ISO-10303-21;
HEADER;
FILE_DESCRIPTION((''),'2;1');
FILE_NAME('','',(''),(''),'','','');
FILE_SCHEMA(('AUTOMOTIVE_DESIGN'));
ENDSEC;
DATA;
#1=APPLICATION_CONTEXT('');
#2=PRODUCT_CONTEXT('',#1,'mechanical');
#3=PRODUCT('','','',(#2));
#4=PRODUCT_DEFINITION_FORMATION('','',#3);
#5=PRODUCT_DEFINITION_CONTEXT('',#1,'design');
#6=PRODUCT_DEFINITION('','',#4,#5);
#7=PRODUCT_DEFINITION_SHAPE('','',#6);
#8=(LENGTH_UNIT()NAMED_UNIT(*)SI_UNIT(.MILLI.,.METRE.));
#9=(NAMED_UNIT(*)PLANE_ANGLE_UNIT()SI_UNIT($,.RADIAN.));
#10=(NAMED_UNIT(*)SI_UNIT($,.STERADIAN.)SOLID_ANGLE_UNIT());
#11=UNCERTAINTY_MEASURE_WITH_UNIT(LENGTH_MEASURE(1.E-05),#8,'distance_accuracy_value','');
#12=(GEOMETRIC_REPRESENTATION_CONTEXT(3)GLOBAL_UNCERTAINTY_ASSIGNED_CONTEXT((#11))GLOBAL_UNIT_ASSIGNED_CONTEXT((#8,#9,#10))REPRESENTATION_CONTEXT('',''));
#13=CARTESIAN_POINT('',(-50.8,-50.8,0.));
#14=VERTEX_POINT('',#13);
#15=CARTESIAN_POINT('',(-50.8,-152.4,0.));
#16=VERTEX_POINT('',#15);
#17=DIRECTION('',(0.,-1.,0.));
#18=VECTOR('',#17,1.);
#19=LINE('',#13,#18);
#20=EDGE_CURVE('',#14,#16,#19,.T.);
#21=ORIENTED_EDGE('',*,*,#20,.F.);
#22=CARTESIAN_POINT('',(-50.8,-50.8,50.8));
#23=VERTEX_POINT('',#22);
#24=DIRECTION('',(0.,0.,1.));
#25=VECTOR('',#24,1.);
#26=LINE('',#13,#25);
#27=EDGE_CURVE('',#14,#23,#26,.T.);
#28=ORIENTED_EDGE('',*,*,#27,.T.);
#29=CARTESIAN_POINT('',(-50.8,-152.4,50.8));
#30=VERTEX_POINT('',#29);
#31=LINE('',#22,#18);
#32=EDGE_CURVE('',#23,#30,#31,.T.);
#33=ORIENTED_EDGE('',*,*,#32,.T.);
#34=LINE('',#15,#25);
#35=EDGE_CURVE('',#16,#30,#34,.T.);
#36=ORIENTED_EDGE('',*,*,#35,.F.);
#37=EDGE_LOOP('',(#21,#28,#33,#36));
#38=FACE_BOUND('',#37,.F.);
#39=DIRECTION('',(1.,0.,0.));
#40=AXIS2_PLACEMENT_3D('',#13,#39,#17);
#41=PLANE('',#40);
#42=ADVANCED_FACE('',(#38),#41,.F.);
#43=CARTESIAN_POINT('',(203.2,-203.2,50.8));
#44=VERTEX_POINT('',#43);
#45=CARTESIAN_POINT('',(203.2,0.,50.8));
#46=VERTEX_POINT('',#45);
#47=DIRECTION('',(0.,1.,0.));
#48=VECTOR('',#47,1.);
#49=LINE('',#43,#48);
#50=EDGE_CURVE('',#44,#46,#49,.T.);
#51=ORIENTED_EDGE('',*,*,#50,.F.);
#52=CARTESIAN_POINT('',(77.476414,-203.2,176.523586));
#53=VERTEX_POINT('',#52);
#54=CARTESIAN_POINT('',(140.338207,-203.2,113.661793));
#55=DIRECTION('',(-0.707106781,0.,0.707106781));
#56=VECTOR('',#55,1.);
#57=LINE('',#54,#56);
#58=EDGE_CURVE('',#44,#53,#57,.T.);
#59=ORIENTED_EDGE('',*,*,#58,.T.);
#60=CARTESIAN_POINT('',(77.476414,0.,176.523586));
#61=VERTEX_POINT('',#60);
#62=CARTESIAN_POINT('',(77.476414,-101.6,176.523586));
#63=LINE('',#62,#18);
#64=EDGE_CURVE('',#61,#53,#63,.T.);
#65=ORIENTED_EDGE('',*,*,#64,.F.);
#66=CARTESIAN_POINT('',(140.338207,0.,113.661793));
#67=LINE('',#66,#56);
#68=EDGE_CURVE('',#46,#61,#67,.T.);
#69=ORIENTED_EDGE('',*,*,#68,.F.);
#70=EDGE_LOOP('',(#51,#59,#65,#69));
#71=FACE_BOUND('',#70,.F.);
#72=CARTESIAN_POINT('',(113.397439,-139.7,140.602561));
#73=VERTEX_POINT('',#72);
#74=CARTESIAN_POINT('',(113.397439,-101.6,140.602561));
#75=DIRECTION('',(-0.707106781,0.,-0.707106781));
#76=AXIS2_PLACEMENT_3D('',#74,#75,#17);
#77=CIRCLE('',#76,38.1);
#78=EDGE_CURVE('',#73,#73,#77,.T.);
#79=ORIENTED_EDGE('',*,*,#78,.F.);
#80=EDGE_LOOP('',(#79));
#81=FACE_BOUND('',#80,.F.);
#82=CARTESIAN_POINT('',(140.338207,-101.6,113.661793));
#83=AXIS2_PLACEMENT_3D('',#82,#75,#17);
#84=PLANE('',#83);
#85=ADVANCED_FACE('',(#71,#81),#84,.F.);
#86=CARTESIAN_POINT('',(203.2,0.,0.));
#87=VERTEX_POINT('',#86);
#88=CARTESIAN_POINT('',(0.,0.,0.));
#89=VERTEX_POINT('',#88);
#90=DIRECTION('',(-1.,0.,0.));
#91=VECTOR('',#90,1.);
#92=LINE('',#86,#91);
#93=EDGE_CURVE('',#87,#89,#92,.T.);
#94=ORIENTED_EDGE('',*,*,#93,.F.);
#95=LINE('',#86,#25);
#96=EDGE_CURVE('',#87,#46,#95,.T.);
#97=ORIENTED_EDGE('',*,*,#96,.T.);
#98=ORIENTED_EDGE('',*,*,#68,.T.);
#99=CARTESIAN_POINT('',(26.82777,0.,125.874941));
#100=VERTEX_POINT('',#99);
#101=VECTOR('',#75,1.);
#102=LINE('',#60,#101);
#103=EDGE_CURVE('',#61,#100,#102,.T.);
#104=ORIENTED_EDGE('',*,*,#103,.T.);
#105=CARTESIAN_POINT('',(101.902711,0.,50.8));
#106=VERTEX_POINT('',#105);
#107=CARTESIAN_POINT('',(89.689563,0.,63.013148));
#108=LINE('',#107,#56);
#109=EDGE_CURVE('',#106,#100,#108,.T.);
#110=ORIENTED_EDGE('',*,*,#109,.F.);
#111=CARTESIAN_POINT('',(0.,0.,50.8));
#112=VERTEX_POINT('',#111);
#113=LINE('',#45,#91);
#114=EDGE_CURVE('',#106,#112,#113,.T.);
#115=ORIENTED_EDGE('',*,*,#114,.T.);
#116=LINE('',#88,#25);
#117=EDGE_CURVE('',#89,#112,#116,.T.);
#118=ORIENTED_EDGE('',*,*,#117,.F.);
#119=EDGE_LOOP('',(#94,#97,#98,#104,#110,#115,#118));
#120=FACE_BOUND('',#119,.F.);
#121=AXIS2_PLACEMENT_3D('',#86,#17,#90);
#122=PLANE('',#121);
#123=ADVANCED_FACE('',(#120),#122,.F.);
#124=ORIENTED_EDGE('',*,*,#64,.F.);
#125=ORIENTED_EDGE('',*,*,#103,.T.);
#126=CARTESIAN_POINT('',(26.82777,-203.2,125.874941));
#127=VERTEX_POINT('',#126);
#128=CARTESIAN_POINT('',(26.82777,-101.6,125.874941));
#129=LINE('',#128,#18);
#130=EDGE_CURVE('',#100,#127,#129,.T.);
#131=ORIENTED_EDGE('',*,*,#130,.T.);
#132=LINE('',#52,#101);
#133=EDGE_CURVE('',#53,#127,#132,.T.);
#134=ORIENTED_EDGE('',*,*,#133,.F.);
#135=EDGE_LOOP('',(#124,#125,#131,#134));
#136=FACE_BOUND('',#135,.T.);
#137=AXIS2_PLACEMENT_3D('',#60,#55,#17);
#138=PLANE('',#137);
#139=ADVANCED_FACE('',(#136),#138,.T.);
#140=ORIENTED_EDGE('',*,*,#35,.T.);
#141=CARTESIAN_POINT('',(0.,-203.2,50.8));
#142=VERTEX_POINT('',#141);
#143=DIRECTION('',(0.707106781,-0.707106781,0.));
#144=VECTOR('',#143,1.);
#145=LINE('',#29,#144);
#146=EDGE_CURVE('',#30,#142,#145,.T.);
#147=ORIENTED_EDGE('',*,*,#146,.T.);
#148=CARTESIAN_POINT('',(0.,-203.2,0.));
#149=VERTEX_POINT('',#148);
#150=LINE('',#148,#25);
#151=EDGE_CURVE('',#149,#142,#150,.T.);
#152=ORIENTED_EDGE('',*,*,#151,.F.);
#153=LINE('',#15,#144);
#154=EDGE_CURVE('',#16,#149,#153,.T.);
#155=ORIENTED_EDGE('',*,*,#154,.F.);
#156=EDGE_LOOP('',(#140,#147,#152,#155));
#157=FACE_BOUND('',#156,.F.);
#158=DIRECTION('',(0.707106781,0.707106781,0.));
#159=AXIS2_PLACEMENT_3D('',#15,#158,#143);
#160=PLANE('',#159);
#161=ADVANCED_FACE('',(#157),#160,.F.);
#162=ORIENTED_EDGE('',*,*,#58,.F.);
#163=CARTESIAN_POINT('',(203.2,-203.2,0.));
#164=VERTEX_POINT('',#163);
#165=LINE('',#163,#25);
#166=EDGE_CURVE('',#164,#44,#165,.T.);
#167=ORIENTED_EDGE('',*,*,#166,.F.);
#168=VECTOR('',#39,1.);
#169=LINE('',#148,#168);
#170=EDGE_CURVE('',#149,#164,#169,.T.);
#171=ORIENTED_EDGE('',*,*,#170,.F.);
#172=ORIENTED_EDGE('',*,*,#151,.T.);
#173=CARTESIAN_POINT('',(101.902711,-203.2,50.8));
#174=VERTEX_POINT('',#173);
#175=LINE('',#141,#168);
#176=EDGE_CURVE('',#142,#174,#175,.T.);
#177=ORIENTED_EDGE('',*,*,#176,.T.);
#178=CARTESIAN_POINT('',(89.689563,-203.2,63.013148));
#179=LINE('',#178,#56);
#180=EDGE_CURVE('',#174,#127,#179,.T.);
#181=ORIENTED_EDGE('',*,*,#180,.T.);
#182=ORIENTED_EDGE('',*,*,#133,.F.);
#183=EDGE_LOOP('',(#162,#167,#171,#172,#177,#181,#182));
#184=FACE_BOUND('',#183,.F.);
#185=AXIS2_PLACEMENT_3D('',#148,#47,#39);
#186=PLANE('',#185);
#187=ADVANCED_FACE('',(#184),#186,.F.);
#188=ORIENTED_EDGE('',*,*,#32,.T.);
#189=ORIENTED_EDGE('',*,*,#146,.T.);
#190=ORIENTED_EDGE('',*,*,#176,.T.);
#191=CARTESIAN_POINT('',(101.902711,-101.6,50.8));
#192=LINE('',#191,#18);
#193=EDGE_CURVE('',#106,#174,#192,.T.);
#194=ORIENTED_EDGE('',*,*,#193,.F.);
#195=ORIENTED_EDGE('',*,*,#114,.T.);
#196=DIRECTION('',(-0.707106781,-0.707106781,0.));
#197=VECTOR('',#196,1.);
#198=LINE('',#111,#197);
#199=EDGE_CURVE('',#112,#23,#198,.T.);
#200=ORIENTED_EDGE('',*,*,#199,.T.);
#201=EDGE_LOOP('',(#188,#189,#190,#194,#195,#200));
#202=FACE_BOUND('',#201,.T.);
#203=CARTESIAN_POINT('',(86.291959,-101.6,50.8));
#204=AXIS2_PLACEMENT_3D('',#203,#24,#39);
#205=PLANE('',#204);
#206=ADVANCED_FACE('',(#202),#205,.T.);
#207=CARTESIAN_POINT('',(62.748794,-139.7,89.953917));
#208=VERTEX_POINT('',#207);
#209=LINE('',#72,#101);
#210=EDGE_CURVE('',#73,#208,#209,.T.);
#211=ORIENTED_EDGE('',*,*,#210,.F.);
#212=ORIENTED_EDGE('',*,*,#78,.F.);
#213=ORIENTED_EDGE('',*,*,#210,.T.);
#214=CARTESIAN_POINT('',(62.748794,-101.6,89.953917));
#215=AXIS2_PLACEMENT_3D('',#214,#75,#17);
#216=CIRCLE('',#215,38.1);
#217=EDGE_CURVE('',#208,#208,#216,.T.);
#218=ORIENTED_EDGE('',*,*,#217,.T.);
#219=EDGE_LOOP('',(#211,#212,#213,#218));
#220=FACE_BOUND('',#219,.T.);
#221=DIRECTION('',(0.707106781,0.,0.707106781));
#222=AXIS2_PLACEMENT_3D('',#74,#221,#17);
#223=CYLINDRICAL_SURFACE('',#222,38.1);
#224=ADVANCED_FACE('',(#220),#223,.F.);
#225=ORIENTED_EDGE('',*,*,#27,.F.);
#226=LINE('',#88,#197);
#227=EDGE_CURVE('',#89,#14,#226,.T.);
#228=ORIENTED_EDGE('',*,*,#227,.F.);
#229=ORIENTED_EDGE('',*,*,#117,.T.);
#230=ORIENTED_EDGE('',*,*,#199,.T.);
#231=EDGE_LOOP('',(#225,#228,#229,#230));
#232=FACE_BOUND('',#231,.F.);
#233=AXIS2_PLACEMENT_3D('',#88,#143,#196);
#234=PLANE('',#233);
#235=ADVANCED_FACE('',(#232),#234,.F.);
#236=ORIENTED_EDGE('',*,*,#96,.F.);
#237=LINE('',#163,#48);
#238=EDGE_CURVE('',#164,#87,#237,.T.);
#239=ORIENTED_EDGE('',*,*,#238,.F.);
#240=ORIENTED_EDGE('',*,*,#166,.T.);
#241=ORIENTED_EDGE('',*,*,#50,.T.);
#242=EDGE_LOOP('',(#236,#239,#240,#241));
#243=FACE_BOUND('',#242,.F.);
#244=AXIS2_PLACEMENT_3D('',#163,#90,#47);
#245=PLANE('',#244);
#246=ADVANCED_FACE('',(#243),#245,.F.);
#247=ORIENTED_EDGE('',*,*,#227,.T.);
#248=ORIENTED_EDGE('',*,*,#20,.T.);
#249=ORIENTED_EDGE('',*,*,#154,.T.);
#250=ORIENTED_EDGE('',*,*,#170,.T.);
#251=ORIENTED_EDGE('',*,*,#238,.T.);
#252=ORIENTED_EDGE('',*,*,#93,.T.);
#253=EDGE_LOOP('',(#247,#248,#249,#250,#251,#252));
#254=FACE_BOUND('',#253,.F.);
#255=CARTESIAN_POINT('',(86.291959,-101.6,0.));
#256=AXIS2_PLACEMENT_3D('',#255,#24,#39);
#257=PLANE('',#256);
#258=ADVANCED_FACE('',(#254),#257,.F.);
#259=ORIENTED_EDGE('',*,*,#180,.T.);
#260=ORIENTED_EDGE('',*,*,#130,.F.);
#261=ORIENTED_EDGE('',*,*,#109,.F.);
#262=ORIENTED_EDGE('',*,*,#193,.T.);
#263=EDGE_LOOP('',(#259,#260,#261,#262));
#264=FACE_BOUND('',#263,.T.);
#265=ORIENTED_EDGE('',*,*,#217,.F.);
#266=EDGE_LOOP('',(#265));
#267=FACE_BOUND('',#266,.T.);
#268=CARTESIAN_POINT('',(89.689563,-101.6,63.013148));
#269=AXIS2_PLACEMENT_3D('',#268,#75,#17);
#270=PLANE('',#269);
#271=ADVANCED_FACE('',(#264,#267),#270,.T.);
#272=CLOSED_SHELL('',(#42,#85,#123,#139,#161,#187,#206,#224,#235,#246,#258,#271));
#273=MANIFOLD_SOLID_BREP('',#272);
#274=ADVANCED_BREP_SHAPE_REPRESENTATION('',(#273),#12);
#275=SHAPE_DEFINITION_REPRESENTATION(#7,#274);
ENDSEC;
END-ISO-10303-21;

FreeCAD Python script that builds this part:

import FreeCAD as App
import Part
import Sketcher
from FreeCAD import Vector
Q = App.Units.Quantity

doc = App.newDocument("Part")
body = doc.addObject("PartDesign::Body", "Body")

# Sketch on XY plane
sketch1 = body.newObject("Sketcher::SketchObject", "Sketch")
sketch1.AttachmentSupport = (doc.getObject("XY_Plane"), [""])
sketch1.MapMode = "FlatFace"
sketch1.addGeometry([
    Part.LineSegment(Vector(203, 0, 0), Vector(0, 0, 0)),  # 0
    Part.LineSegment(Vector(0, 0, 0), Vector(-51, -51, 0)),  # 1
    Part.LineSegment(Vector(-51, -51, 0), Vector(-51, -152, 0)),  # 2
    Part.LineSegment(Vector(-51, -152, 0), Vector(0, -203, 0)),  # 3
    Part.LineSegment(Vector(0, -203, 0), Vector(203, -203, 0)),  # 4
    Part.LineSegment(Vector(203, -203, 0), Vector(203, 0, 0)),  # 5
], False)
sketch1.addConstraint([
    Sketcher.Constraint("Coincident", 0, 2, 1, 1),
    Sketcher.Constraint("Coincident", 1, 2, 2, 1),
    Sketcher.Constraint("Coincident", 2, 2, 3, 1),
    Sketcher.Constraint("Coincident", 3, 2, 4, 1),
    Sketcher.Constraint("Coincident", 4, 2, 5, 1),
    Sketcher.Constraint("Coincident", 5, 2, 0, 1),
    Sketcher.Constraint("Horizontal", 0),
    Sketcher.Constraint("Vertical", 2),
    Sketcher.Constraint("Horizontal", 4),
    Sketcher.Constraint("Vertical", 5),
    Sketcher.Constraint("Coincident", 0, 2, -1, 1),
    Sketcher.Constraint("PointOnObject", 3, 2, -2),
    Sketcher.Constraint("Perpendicular", 1, 3),
    Sketcher.Constraint("Equal", 4, 5),
    Sketcher.Constraint("Equal", 1, 3),
    Sketcher.Constraint("DistanceX", 0, 2, 0, 1, Q("8 in")),
    Sketcher.Constraint("DistanceY", 2, 2, 2, 1, Q("4 in")),
])
pad1 = body.newObject("PartDesign::Pad", "Pad")
pad1.Profile = sketch1
pad1.Length = Q("2 in")

# Sketch on an angled plane
sketch2 = body.newObject("Sketcher::SketchObject", "Sketch001")
sketch2.Placement = App.Placement(Vector(127, 0, 127), App.Rotation(Vector(0, -1, 0), Vector(-0.707106781, 0, 0.707106781), Vector(-0.707106781, 0, -0.707106781), "ZXY"))
sketch2.addGeometry([
    Part.LineSegment(Vector(0, 70, 0), Vector(0, -108, 0)),  # 0
    Part.LineSegment(Vector(0, -108, 0), Vector(203, -108, 0)),  # 1
    Part.LineSegment(Vector(203, -108, 0), Vector(203, 70, 0)),  # 2
    Part.LineSegment(Vector(203, 70, 0), Vector(0, 70, 0)),  # 3
    Part.Circle(Vector(102, 19, 0), Vector(0, 0, 1), 38),  # 4
], False)
sketch2.addConstraint([
    Sketcher.Constraint("Coincident", 0, 2, 1, 1),
    Sketcher.Constraint("Coincident", 1, 2, 2, 1),
    Sketcher.Constraint("Coincident", 2, 2, 3, 1),
    Sketcher.Constraint("Coincident", 3, 2, 0, 1),
    Sketcher.Constraint("Vertical", 0),
    Sketcher.Constraint("Horizontal", 1),
    Sketcher.Constraint("Vertical", 2),
    Sketcher.Constraint("Horizontal", 3),
    Sketcher.Constraint("PointOnObject", 0, 2, -2),
    Sketcher.Constraint("Diameter", 4, Q("3 in")),
    Sketcher.Constraint("DistanceX", 1, 1, 1, 2, Q("8 in")),
    Sketcher.Constraint("DistanceY", 0, 2, 0, 1, Q("7 in")),
    Sketcher.Constraint("DistanceX", -1, 1, 4, 3, Q("4 in")),
    Sketcher.Constraint("DistanceY", 0, 2, 4, 3, Q("5 in")),
    Sketcher.Constraint("DistanceY", -1, 1, 4, 3, 19.236927),
])
pad2 = body.newObject("PartDesign::Pad", "Pad001")
pad2.Profile = sketch2
pad2.Length = Q("2.82 in")

doc.recompute()
